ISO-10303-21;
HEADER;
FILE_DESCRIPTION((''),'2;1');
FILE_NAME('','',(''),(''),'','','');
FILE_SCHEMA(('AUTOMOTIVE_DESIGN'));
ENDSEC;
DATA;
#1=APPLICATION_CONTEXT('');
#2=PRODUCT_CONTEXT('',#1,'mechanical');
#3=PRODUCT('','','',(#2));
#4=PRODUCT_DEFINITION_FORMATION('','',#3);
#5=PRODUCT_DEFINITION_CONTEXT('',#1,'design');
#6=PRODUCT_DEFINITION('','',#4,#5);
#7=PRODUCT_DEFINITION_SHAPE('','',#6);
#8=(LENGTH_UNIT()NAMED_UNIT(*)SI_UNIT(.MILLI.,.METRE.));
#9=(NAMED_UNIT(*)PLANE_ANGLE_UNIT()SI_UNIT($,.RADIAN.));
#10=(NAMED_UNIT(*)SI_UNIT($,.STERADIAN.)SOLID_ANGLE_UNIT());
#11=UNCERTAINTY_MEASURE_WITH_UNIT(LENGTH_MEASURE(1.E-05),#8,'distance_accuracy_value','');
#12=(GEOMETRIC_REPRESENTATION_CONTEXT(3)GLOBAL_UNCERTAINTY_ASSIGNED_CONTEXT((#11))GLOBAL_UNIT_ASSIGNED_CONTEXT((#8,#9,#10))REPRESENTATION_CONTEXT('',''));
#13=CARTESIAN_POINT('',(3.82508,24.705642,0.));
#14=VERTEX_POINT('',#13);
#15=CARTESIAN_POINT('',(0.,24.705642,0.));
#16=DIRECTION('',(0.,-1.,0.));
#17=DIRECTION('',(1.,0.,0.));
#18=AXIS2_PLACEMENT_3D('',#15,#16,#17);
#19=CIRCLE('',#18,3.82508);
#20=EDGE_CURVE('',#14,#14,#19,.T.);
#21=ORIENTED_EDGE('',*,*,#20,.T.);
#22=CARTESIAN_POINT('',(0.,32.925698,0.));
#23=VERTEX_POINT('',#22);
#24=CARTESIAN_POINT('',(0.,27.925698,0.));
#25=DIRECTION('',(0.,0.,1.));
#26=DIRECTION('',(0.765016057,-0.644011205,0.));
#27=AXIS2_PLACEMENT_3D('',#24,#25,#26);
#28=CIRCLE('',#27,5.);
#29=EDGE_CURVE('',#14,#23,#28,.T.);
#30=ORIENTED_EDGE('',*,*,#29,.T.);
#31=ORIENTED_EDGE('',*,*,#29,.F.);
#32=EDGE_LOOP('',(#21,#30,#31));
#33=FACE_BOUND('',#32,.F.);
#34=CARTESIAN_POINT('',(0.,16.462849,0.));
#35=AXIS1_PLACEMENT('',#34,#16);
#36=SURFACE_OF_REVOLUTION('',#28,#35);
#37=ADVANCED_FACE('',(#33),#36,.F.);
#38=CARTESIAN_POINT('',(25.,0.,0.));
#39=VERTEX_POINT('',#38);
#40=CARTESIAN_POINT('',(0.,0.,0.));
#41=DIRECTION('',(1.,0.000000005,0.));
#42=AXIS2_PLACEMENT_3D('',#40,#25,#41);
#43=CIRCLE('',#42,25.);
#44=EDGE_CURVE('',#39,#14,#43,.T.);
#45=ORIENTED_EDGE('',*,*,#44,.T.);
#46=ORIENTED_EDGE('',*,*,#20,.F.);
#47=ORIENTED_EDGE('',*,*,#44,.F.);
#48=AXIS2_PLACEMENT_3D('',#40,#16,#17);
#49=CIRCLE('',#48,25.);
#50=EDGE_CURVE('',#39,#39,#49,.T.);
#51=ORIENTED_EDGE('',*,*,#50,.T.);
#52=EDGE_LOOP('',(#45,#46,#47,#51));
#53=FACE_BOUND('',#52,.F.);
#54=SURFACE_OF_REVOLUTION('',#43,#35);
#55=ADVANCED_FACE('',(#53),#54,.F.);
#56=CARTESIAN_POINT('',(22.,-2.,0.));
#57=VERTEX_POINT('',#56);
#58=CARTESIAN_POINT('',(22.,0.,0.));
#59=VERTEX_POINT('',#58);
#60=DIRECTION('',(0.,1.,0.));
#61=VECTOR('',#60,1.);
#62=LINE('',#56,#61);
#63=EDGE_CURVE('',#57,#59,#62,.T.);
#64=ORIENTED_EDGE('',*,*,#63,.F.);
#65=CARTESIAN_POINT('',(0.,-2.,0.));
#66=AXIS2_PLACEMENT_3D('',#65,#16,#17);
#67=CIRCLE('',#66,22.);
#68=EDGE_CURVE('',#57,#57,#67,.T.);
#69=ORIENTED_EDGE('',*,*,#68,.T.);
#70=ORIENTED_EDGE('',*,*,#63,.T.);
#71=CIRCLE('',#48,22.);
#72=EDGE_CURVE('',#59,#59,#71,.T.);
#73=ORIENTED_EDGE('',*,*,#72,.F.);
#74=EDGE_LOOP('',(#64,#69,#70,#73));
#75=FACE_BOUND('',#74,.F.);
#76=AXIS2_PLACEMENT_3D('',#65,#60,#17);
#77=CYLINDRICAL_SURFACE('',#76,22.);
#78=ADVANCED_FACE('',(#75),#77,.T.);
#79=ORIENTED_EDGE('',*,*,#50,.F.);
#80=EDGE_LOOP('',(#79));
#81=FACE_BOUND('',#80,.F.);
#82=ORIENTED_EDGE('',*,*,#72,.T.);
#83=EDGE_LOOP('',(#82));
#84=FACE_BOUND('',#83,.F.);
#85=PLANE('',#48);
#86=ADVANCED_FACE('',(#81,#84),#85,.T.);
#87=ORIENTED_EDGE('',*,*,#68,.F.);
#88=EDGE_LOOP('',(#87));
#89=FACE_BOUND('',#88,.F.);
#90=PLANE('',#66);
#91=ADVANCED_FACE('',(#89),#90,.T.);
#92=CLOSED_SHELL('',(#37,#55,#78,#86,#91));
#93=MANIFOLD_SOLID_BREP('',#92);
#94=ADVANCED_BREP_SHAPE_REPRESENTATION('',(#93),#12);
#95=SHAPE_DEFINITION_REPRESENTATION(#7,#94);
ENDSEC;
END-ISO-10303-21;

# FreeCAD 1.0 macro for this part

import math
import FreeCAD as App
import Part
import Sketcher

V = App.Vector

doc = App.newDocument("Part")
body = doc.addObject("PartDesign::Body", "Body")

# Sketch on XY plane
sketch1 = body.newObject("Sketcher::SketchObject", "Sketch")
sketch1.AttachmentSupport = (doc.getObject("XY_Plane"), [""])
sketch1.MapMode = "FlatFace"
sketch1.addGeometry([
    Part.LineSegment(V(22, 0, 0), V(25, 0, 0)),  # 0
    Part.ArcOfCircle(Part.Circle(V(0, 0, 0), V(0, 0, 1), 25), math.radians(0), math.radians(81.198994)),  # 1
    Part.ArcOfCircle(Part.Circle(V(0, 27.925698, 0), V(0, 0, 1), 5), math.radians(-40.091579), math.radians(89.999997)),  # 2
    Part.LineSegment(V(0, 32.925698, 0), V(0, -2, 0)),  # 3
    Part.LineSegment(V(0, -2, 0), V(22, -2, 0)),  # 4
    Part.LineSegment(V(22, -2, 0), V(22, 0, 0)),  # 5
], False)
sketch1.addConstraint([
    Sketcher.Constraint("Coincident", 0, 2, 1, 1),
    Sketcher.Constraint("Coincident", 1, 2, 2, 1),
    Sketcher.Constraint("Coincident", 2, 2, 3, 1),
    Sketcher.Constraint("Coincident", 3, 2, 4, 1),
    Sketcher.Constraint("Coincident", 4, 2, 5, 1),
    Sketcher.Constraint("Coincident", 5, 2, 0, 1),
    Sketcher.Constraint("Horizontal", 0),
    Sketcher.Constraint("Vertical", 3),
    Sketcher.Constraint("Horizontal", 4),
    Sketcher.Constraint("Vertical", 5),
    Sketcher.Constraint("Coincident", 1, 3, -1, 1),
    Sketcher.Constraint("PointOnObject", 2, 3, -2),
    Sketcher.Constraint("PointOnObject", 0, 2, -1),
    Sketcher.Constraint("PointOnObject", 2, 2, -2),
    Sketcher.Constraint("Radius", 1, 25.0),
    Sketcher.Constraint("Radius", 2, 5.0),
    Sketcher.Constraint("DistanceX", 0, 1, 0, 2, 3.0),
    Sketcher.Constraint("DistanceY", 5, 1, 5, 2, 2.0),
    Sketcher.Constraint("DistanceY", -1, 1, 2, 3, 27.925698),
])
revolution = body.newObject("PartDesign::Revolution", "Revolution")
revolution.Profile = sketch1
revolution.ReferenceAxis = (sketch1, ["V_Axis"])
revolution.Angle = 360

doc.recompute()
